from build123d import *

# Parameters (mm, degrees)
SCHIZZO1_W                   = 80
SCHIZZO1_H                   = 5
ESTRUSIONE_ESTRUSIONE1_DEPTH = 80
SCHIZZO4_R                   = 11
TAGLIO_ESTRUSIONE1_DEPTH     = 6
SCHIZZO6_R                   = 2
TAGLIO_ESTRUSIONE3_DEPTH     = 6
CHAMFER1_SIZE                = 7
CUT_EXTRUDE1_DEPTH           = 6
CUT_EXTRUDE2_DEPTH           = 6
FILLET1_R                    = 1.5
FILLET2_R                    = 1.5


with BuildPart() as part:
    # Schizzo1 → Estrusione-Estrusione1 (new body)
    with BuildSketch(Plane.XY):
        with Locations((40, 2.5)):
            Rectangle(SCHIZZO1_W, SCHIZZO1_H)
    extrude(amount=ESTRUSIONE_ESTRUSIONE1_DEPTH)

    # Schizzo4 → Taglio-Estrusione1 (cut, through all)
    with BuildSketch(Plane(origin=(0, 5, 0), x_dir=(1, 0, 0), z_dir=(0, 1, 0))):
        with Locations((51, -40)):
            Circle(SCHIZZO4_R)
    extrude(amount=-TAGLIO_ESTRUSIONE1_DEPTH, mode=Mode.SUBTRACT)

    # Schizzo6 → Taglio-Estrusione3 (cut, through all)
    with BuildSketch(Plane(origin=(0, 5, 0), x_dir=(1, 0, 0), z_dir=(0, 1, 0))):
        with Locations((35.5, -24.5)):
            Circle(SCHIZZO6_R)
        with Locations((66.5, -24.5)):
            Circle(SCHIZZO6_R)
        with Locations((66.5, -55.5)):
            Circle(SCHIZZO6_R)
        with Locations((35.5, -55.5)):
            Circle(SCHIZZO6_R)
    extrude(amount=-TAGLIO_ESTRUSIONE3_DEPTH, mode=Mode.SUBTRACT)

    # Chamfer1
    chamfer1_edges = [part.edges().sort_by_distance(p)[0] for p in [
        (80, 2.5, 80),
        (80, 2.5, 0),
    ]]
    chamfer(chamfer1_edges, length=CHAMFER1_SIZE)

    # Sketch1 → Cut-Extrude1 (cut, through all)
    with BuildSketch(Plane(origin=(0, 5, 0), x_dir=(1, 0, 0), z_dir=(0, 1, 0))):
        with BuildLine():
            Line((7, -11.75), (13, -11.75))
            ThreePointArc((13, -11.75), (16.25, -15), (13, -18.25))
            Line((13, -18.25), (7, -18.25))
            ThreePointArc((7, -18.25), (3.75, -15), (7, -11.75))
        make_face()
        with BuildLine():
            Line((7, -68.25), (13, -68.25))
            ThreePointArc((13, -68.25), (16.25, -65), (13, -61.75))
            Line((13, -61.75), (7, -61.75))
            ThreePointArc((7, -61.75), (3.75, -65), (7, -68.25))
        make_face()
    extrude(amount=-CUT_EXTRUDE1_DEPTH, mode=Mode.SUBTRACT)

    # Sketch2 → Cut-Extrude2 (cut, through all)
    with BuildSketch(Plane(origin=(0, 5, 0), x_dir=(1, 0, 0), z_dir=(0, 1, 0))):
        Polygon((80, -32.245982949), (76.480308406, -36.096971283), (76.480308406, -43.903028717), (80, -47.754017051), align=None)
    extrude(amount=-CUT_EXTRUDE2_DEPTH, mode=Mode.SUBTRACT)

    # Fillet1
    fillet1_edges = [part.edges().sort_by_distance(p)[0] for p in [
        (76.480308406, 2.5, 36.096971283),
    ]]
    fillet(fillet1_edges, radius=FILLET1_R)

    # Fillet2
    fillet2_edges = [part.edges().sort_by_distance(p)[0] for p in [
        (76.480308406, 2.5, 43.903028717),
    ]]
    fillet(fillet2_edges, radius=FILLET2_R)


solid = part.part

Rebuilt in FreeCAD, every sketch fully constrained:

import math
import FreeCAD as App
import Part
import Sketcher

V = App.Vector


def edges_at(feature, points):
    """Names of the edges that pass closest to the given points."""
    edges = feature.Shape.Edges
    near = lambda p: min(range(len(edges)), key=lambda i: edges[i].distToShape(Part.Vertex(*p))[0])
    return sorted({f"Edge{near(p) + 1}" for p in points})


def add_polygon(sketch, points):
    """Adds a closed chain of lines whose ends are joined by coincident constraints."""
    first, n = sketch.GeometryCount, len(points)
    for a, b in zip(points, points[1:] + points[:1]):
        sketch.addGeometry(Part.LineSegment(App.Vector(*a, 0), App.Vector(*b, 0)), False)
    for i in range(n):
        sketch.addConstraint(Sketcher.Constraint("Coincident", first + i, 2, first + (i + 1) % n, 1))

doc = App.newDocument("Part")
body = doc.addObject("PartDesign::Body", "Body")

# Sketch on XY plane
sketch1 = body.newObject("Sketcher::SketchObject", "Sketch")
sketch1.AttachmentSupport = (doc.getObject("XY_Plane"), [""])
sketch1.MapMode = "FlatFace"
add_polygon(sketch1, [(0, 5), (0, 0), (80, 0), (80, 5)])  # lines 0-3
sketch1.addConstraint([
    Sketcher.Constraint("Vertical", 0),
    Sketcher.Constraint("Horizontal", 1),
    Sketcher.Constraint("Vertical", 2),
    Sketcher.Constraint("Horizontal", 3),
    Sketcher.Constraint("Coincident", 0, 2, -1, 1),
    Sketcher.Constraint("DistanceX", 1, 1, 1, 2, 80.0),
    Sketcher.Constraint("DistanceY", 0, 2, 0, 1, 5.0),
])
pad1 = body.newObject("PartDesign::Pad", "Pad")
pad1.Profile = sketch1
pad1.Length = 80

# Sketch on XZ plane
sketch2 = body.newObject("Sketcher::SketchObject", "Sketch001")
sketch2.AttachmentSupport = (doc.getObject("XZ_Plane"), [""])
sketch2.MapMode = "FlatFace"
sketch2.AttachmentOffset = App.Placement(V(0, 0, -5), App.Rotation())
sketch2.addGeometry(Part.Circle(V(51, 40, 0), V(0, 0, 1), 11), False)
sketch2.addConstraint([
    Sketcher.Constraint("Diameter", 0, 22.0),
    Sketcher.Constraint("DistanceX", -1, 1, 0, 3, 51.0),
    Sketcher.Constraint("DistanceY", -1, 1, 0, 3, 40.0),
])
pocket1 = body.newObject("PartDesign::Pocket", "Pocket")
pocket1.Profile = sketch2
pocket1.Type = "ThroughAll"
pocket1.Reversed = True

# Sketch on XZ plane
sketch3 = body.newObject("Sketcher::SketchObject", "Sketch002")
sketch3.AttachmentSupport = (doc.getObject("XZ_Plane"), [""])
sketch3.MapMode = "FlatFace"
sketch3.AttachmentOffset = App.Placement(V(0, 0, -5), App.Rotation())
sketch3.addGeometry([
    Part.Circle(V(35.5, 24.5, 0), V(0, 0, 1), 2),
    Part.Circle(V(66.5, 24.5, 0), V(0, 0, 1), 2),
    Part.Circle(V(66.5, 55.5, 0), V(0, 0, 1), 2),
    Part.Circle(V(35.5, 55.5, 0), V(0, 0, 1), 2),
], False)
sketch3.addConstraint([
    Sketcher.Constraint("Equal", 0, 1),
    Sketcher.Constraint("Equal", 1, 2),
    Sketcher.Constraint("Equal", 2, 3),
    Sketcher.Constraint("Horizontal", 0, 3, 1, 3),
    Sketcher.Constraint("Horizontal", 2, 3, 3, 3),
    Sketcher.Constraint("Vertical", 1, 3, 2, 3),
    Sketcher.Constraint("Vertical", 0, 3, 3, 3),
    Sketcher.Constraint("Diameter", 0, 4.0),
    Sketcher.Constraint("DistanceX", 0, 3, 1, 3, 31.0),
    Sketcher.Constraint("DistanceY", 1, 3, 2, 3, 31.0),
    Sketcher.Constraint("DistanceX", -1, 1, 0, 3, 35.5),
    Sketcher.Constraint("DistanceY", -1, 1, 0, 3, 24.5),
])
pocket2 = body.newObject("PartDesign::Pocket", "Pocket001")
pocket2.Profile = sketch3
pocket2.Type = "ThroughAll"
pocket2.Reversed = True
doc.recompute()

chamfer = body.newObject("PartDesign::Chamfer", "Chamfer")
chamfer.Base = (pocket2, edges_at(pocket2, [(80, 2.5, 80), (80, 2.5, 0)]))
chamfer.Size = 7

# Sketch on XZ plane
sketch4 = body.newObject("Sketcher::SketchObject", "Sketch003")
sketch4.AttachmentSupport = (doc.getObject("XZ_Plane"), [""])
sketch4.MapMode = "FlatFace"
sketch4.AttachmentOffset = App.Placement(V(0, 0, -5), App.Rotation())
sketch4.addGeometry([
    Part.LineSegment(V(13, 11.8, 0), V(7, 11.8, 0)),  # 0
    Part.ArcOfCircle(Part.Circle(V(7, 15, 0), V(0, 0, 1), 3.2), math.radians(90), math.radians(270)),  # 1
    Part.LineSegment(V(7, 18.2, 0), V(13, 18.2, 0)),  # 2
    Part.ArcOfCircle(Part.Circle(V(13, 15, 0), V(0, 0, 1), 3.2), math.radians(-90), math.radians(90)),  # 3
    Part.LineSegment(V(7, 68.2, 0), V(13, 68.2, 0)),  # 4
    Part.ArcOfCircle(Part.Circle(V(13, 65, 0), V(0, 0, 1), 3.2), math.radians(-90), math.radians(90)),  # 5
    Part.LineSegment(V(13, 61.8, 0), V(7, 61.8, 0)),  # 6
    Part.ArcOfCircle(Part.Circle(V(7, 65, 0), V(0, 0, 1), 3.2), math.radians(90), math.radians(270)),  # 7
], False)
sketch4.addConstraint([
    Sketcher.Constraint("Tangent", 0, 2, 1, 2),
    Sketcher.Constraint("Tangent", 1, 1, 2, 1),
    Sketcher.Constraint("Tangent", 2, 2, 3, 2),
    Sketcher.Constraint("Tangent", 3, 1, 0, 1),
    Sketcher.Constraint("Tangent", 4, 2, 5, 2),
    Sketcher.Constraint("Tangent", 5, 1, 6, 1),
    Sketcher.Constraint("Tangent", 6, 2, 7, 2),
    Sketcher.Constraint("Tangent", 7, 1, 4, 1),
    Sketcher.Constraint("Horizontal", 0),
    Sketcher.Constraint("Horizontal", 2),
    Sketcher.Constraint("Horizontal", 4),
    Sketcher.Constraint("Horizontal", 6),
    Sketcher.Constraint("Equal", 3, 5),
    Sketcher.Constraint("Vertical", 3, 3, 5, 3),
    Sketcher.Constraint("Vertical", 1, 3, 7, 3),
    Sketcher.Constraint("DistanceX", 0, 2, 0, 1, 6.0),
    Sketcher.Constraint("Radius", 1, 3.25),
    Sketcher.Constraint("DistanceX", -1, 1, 1, 3, 7.0),
    Sketcher.Constraint("DistanceY", -1, 1, 1, 3, 15.0),
    Sketcher.Constraint("DistanceY", -1, 1, 5, 3, 65.0),
])
pocket3 = body.newObject("PartDesign::Pocket", "Pocket002")
pocket3.Profile = sketch4
pocket3.Type = "ThroughAll"
pocket3.Reversed = True

# Sketch on XZ plane
sketch5 = body.newObject("Sketcher::SketchObject", "Sketch004")
sketch5.AttachmentSupport = (doc.getObject("XZ_Plane"), [""])
sketch5.MapMode = "FlatFace"
sketch5.AttachmentOffset = App.Placement(V(0, 0, -5), App.Rotation())
add_polygon(sketch5, [(80, 32), (76, 36), (76, 44), (80, 48)])  # lines 0-3
sketch5.addConstraint([
    Sketcher.Constraint("Vertical", 1),
    Sketcher.Constraint("Vertical", 3),
    Sketcher.Constraint("Equal", 0, 2),
    Sketcher.Constraint("DistanceX", -1, 1, 2, 2, 80.0),
    Sketcher.Constraint("Distance", 0, 5.21712),
    Sketcher.Constraint("DistanceY", 1, 1, 1, 2, 7.806057),
    Sketcher.Constraint("DistanceY", 3, 2, 3, 1, 15.508034),
    Sketcher.Constraint("DistanceY", -1, 1, 0, 2, 36.096971),
])
pocket4 = body.newObject("PartDesign::Pocket", "Pocket003")
pocket4.Profile = sketch5
pocket4.Type = "ThroughAll"
pocket4.Reversed = True
doc.recompute()

fillet = body.newObject("PartDesign::Fillet", "Fillet")
fillet.Base = (pocket4, edges_at(pocket4, [(76.48, 2.5, 36.097)]))
fillet.Radius = 1.5
doc.recompute()

fillet2 = body.newObject("PartDesign::Fillet", "Fillet001")
fillet2.Base = (fillet, edges_at(fillet, [(76.48, 2.5, 43.903)]))
fillet2.Radius = 1.5

doc.recompute()
